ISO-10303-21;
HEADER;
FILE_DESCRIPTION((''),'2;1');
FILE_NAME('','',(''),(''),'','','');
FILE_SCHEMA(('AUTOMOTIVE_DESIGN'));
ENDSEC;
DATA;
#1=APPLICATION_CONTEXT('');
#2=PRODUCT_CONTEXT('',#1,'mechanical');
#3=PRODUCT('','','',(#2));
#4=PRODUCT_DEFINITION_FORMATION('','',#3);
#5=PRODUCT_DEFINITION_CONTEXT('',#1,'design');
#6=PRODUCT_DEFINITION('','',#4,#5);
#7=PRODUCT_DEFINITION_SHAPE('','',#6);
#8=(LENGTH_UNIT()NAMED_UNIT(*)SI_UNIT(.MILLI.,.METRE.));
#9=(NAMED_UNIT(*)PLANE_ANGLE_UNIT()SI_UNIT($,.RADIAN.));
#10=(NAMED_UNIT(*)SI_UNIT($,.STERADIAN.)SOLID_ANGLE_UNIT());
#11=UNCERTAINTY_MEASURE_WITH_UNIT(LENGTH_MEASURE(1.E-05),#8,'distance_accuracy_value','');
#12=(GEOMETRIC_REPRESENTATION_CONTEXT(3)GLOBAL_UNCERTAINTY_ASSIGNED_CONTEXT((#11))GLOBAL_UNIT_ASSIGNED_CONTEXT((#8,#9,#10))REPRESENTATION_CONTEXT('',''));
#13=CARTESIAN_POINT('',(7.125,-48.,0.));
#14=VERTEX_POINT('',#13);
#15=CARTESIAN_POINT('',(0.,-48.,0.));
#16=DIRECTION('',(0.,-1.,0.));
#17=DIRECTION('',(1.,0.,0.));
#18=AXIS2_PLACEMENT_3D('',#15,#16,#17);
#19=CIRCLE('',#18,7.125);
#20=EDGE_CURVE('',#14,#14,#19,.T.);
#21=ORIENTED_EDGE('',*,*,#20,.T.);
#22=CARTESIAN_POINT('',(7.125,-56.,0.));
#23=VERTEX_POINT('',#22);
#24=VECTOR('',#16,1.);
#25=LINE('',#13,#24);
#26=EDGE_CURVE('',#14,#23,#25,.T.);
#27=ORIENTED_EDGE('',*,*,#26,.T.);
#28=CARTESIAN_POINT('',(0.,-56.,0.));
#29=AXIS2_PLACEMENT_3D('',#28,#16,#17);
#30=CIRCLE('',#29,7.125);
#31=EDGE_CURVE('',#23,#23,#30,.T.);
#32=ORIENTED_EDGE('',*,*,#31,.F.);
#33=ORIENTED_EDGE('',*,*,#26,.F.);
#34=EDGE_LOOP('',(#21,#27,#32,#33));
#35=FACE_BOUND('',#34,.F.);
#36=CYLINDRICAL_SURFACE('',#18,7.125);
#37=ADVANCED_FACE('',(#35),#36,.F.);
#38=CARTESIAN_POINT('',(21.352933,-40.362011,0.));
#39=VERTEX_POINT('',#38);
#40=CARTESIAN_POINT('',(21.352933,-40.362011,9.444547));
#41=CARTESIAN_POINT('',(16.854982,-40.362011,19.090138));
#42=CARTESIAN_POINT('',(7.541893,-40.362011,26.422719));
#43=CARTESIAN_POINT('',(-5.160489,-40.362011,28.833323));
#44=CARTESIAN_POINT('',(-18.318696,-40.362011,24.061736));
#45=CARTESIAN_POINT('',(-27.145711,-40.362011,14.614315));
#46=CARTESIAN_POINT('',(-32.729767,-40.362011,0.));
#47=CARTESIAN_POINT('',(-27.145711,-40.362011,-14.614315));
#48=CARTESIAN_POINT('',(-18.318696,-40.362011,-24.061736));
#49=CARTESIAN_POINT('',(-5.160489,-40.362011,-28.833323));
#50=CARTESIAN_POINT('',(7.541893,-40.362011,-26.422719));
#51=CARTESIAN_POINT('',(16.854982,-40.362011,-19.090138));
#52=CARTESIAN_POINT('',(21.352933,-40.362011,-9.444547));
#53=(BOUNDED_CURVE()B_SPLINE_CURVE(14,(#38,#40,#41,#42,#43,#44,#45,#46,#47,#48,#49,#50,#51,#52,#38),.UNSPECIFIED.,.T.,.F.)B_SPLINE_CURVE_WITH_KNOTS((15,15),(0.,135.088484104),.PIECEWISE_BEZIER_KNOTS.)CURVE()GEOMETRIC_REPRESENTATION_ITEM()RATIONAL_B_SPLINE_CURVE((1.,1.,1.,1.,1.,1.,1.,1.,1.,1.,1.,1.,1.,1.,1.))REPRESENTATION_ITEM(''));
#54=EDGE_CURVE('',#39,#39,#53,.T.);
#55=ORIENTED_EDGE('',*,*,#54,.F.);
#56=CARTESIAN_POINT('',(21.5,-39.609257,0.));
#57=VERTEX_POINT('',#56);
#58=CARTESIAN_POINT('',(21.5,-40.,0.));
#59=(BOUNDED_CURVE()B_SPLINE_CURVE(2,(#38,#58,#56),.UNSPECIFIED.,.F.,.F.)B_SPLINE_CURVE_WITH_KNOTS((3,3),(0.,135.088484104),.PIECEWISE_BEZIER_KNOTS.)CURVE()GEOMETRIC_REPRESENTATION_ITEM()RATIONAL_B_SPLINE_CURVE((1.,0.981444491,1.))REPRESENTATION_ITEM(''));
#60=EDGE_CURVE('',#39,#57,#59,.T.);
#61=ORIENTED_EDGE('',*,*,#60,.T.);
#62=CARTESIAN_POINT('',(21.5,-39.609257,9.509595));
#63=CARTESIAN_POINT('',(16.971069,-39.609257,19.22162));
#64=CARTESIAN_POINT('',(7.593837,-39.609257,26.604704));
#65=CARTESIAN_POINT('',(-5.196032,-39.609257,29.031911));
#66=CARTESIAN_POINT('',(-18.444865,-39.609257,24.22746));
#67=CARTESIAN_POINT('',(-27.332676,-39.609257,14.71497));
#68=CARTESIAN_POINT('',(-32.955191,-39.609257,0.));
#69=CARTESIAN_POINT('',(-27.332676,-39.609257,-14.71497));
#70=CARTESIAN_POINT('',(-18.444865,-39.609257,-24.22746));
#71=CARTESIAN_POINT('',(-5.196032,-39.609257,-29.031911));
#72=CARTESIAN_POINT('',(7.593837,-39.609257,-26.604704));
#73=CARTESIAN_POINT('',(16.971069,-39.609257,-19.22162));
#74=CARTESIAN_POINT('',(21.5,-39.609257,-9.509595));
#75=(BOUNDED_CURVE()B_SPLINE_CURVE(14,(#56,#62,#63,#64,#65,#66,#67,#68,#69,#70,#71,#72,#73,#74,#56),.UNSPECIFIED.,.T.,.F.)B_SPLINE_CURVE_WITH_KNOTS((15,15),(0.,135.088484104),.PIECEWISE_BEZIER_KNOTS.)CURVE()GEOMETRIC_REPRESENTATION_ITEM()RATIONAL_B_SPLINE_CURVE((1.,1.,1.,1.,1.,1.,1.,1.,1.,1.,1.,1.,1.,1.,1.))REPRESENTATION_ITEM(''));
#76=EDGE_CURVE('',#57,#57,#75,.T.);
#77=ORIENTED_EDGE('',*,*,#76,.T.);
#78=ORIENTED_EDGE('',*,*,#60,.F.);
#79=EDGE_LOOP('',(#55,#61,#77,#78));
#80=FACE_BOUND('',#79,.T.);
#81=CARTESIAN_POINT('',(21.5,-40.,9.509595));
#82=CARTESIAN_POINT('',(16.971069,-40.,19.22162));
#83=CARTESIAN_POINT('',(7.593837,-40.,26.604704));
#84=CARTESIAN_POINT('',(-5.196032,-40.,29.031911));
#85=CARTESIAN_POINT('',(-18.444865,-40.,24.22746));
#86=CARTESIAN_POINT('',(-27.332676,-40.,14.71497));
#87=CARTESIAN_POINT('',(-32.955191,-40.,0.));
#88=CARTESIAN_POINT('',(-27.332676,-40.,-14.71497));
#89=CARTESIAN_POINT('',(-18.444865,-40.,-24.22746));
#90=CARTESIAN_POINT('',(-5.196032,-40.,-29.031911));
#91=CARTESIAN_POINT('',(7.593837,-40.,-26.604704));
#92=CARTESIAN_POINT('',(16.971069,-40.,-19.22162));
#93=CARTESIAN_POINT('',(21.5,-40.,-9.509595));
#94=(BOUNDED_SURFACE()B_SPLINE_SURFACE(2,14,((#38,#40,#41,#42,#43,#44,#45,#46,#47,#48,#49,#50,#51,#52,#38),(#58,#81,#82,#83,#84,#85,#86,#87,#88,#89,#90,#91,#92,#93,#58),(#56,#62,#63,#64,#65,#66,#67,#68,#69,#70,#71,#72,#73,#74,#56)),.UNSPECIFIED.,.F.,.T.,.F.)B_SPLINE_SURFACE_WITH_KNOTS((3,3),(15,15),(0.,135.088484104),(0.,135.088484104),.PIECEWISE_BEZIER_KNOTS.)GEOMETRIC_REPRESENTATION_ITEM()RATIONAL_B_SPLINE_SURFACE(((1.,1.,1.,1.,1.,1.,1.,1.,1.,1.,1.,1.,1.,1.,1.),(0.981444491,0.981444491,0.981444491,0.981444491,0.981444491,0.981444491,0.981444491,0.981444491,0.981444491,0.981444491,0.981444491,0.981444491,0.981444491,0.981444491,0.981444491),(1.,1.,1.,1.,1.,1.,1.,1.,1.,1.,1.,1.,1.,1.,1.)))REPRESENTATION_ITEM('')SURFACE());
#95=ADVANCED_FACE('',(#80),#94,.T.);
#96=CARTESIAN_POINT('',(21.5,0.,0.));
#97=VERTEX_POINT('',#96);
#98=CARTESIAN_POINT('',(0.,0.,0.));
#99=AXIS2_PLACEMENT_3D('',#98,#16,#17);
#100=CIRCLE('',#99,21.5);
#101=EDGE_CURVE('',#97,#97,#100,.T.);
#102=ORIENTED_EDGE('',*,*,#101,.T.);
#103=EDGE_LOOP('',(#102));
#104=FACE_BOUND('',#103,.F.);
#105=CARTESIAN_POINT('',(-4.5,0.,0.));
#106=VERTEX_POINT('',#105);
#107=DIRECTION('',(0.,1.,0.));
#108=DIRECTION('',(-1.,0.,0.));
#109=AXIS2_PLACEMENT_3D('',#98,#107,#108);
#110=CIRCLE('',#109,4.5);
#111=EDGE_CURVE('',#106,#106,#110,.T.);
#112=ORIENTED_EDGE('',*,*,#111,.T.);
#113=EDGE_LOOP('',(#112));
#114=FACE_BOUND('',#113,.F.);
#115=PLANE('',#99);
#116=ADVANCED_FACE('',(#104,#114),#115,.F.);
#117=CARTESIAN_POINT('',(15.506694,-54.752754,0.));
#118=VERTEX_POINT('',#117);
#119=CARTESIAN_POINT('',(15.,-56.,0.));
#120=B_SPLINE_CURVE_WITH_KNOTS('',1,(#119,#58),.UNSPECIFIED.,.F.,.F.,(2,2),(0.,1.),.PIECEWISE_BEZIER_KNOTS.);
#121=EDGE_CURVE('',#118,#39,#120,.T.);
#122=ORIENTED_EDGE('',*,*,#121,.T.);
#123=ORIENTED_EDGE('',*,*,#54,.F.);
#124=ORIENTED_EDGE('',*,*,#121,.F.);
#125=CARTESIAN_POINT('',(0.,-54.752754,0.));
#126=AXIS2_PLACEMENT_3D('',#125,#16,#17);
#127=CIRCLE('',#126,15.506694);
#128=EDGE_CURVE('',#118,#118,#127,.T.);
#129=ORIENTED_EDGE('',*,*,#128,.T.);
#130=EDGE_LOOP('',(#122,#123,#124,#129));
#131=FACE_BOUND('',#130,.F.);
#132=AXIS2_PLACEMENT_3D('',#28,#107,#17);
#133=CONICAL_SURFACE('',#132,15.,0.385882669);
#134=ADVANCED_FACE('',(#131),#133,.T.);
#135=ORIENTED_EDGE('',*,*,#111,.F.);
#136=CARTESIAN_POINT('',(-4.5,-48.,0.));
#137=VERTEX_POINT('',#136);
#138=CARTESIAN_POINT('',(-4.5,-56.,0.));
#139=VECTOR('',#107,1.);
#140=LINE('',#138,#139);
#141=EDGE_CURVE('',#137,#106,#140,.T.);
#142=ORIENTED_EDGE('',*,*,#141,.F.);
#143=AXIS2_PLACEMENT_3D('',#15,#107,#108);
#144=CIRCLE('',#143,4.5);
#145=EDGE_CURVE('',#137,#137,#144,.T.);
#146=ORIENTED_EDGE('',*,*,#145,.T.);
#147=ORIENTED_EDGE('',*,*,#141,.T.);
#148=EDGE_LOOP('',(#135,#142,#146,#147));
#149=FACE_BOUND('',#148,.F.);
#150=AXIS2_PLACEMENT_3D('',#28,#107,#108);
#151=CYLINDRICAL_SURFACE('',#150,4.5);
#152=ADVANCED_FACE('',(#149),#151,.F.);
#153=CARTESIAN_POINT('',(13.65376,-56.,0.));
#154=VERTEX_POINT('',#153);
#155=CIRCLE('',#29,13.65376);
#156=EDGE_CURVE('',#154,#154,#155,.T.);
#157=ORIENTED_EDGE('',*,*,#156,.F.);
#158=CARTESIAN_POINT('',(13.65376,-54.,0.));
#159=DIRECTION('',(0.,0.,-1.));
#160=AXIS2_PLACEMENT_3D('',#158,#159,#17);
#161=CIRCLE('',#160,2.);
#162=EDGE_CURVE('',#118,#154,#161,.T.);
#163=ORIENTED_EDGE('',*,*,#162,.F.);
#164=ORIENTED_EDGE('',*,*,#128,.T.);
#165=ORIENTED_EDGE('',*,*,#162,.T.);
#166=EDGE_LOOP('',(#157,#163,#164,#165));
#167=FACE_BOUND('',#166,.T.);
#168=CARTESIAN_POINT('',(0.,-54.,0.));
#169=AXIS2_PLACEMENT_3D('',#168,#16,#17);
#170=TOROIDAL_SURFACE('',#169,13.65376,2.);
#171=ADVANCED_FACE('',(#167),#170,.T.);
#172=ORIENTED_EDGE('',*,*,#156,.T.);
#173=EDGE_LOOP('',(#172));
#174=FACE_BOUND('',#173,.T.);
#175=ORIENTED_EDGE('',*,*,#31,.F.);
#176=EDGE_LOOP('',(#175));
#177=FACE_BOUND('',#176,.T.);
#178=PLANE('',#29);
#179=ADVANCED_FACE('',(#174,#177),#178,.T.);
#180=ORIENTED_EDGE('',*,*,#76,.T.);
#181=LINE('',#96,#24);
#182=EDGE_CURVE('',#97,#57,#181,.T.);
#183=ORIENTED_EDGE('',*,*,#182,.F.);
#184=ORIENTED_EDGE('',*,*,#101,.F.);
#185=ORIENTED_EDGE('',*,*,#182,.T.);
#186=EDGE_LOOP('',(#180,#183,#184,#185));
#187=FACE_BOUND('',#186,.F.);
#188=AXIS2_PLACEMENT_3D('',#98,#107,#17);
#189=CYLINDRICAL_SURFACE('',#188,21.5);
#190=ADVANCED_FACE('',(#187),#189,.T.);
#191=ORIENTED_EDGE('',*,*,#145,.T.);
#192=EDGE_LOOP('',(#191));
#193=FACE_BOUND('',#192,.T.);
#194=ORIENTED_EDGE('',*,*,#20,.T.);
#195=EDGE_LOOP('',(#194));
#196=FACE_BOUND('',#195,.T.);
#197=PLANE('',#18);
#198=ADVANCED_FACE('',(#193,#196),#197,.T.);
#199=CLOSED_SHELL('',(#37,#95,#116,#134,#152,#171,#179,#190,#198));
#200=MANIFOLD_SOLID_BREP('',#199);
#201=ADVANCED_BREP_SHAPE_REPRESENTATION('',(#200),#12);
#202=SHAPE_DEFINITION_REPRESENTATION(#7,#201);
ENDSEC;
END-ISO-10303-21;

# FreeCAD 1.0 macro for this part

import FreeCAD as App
import Part
import Sketcher
from FreeCAD import Vector
Q = App.Units.Quantity


def edges_at(feature, points):
    """Names of the edges that pass closest to the given points."""
    edges = feature.Shape.Edges
    near = lambda p: min(range(len(edges)), key=lambda i: edges[i].distToShape(Part.Vertex(*p))[0])
    return sorted({f"Edge{near(p) + 1}" for p in points})

doc = App.newDocument("Part")
body = doc.addObject("PartDesign::Body", "Body")

# Sketch on XZ plane
sketch1 = body.newObject("Sketcher::SketchObject", "Sketch")
sketch1.AttachmentSupport = (doc.getObject("XZ_Plane"), [""])
sketch1.MapMode = "FlatFace"
sketch1.addGeometry(Part.Circle(Vector(0, 0, 0), Vector(0, 0, 1), 21.5), False)
sketch1.addConstraint([
    Sketcher.Constraint("Coincident", 0, 3, -1, 1),
    Sketcher.Constraint("Diameter", 0, Q("43 mm")),
])
pad1 = body.newObject("PartDesign::Pad", "Pad")
pad1.Profile = sketch1
pad1.Length = 40

# Sketch on XZ plane
sketch2 = body.newObject("Sketcher::SketchObject", "Sketch001")
sketch2.AttachmentSupport = (doc.getObject("XZ_Plane"), [""])
sketch2.MapMode = "FlatFace"
sketch2.AttachmentOffset = App.Placement(Vector(0, 0, 56), App.Rotation())
sketch2.addGeometry(Part.Circle(Vector(0, 0, 0), Vector(0, 0, 1), 15), False)
sketch2.addConstraint([
    Sketcher.Constraint("Coincident", 0, 3, -1, 1),
    Sketcher.Constraint("Diameter", 0, Q("30 mm")),
])

# Sketch on XZ plane
sketch3 = body.newObject("Sketcher::SketchObject", "Sketch002")
sketch3.AttachmentSupport = (doc.getObject("XZ_Plane"), [""])
sketch3.MapMode = "FlatFace"
sketch3.AttachmentOffset = App.Placement(Vector(0, 0, 40), App.Rotation())
sketch3.addGeometry(Part.Circle(Vector(0, 0, 0), Vector(0, 0, 1), 21.5), False)
sketch3.addConstraint([
    Sketcher.Constraint("Coincident", 0, 3, -1, 1),
    Sketcher.Constraint("Diameter", 0, Q("43 mm")),
])

additiveloft = body.newObject("PartDesign::AdditiveLoft", "AdditiveLoft")
additiveloft.Profile = sketch2
additiveloft.Sections = [sketch3]

# Sketch on XZ plane
sketch4 = body.newObject("Sketcher::SketchObject", "Sketch003")
sketch4.AttachmentSupport = (doc.getObject("XZ_Plane"), [""])
sketch4.MapMode = "FlatFace"
sketch4.AttachmentOffset = App.Placement(Vector(0, 0, 56), App.Rotation())
sketch4.addGeometry(Part.Circle(Vector(0, 0, 0), Vector(0, 0, 1), 4.5), False)
sketch4.addConstraint([
    Sketcher.Constraint("Coincident", 0, 3, -1, 1),
    Sketcher.Constraint("Diameter", 0, Q("9 mm")),
])
doc.recompute()
hole = body.newObject("PartDesign::Hole", "Hole")
hole.Profile = sketch4
hole.ThreadType = "None"
hole.Diameter = 9
hole.DepthType = "ThroughAll"
hole.HoleCutType = "Counterbore"
hole.HoleCutDiameter = 14.25
hole.HoleCutDepth = 8
doc.recompute()

fillet = body.newObject("PartDesign::Fillet", "Fillet")
fillet.Base = (hole, edges_at(hole, [(-21.5, -40, 0), (-15, -56, 0)]))
fillet.Radius = 2

doc.recompute()
